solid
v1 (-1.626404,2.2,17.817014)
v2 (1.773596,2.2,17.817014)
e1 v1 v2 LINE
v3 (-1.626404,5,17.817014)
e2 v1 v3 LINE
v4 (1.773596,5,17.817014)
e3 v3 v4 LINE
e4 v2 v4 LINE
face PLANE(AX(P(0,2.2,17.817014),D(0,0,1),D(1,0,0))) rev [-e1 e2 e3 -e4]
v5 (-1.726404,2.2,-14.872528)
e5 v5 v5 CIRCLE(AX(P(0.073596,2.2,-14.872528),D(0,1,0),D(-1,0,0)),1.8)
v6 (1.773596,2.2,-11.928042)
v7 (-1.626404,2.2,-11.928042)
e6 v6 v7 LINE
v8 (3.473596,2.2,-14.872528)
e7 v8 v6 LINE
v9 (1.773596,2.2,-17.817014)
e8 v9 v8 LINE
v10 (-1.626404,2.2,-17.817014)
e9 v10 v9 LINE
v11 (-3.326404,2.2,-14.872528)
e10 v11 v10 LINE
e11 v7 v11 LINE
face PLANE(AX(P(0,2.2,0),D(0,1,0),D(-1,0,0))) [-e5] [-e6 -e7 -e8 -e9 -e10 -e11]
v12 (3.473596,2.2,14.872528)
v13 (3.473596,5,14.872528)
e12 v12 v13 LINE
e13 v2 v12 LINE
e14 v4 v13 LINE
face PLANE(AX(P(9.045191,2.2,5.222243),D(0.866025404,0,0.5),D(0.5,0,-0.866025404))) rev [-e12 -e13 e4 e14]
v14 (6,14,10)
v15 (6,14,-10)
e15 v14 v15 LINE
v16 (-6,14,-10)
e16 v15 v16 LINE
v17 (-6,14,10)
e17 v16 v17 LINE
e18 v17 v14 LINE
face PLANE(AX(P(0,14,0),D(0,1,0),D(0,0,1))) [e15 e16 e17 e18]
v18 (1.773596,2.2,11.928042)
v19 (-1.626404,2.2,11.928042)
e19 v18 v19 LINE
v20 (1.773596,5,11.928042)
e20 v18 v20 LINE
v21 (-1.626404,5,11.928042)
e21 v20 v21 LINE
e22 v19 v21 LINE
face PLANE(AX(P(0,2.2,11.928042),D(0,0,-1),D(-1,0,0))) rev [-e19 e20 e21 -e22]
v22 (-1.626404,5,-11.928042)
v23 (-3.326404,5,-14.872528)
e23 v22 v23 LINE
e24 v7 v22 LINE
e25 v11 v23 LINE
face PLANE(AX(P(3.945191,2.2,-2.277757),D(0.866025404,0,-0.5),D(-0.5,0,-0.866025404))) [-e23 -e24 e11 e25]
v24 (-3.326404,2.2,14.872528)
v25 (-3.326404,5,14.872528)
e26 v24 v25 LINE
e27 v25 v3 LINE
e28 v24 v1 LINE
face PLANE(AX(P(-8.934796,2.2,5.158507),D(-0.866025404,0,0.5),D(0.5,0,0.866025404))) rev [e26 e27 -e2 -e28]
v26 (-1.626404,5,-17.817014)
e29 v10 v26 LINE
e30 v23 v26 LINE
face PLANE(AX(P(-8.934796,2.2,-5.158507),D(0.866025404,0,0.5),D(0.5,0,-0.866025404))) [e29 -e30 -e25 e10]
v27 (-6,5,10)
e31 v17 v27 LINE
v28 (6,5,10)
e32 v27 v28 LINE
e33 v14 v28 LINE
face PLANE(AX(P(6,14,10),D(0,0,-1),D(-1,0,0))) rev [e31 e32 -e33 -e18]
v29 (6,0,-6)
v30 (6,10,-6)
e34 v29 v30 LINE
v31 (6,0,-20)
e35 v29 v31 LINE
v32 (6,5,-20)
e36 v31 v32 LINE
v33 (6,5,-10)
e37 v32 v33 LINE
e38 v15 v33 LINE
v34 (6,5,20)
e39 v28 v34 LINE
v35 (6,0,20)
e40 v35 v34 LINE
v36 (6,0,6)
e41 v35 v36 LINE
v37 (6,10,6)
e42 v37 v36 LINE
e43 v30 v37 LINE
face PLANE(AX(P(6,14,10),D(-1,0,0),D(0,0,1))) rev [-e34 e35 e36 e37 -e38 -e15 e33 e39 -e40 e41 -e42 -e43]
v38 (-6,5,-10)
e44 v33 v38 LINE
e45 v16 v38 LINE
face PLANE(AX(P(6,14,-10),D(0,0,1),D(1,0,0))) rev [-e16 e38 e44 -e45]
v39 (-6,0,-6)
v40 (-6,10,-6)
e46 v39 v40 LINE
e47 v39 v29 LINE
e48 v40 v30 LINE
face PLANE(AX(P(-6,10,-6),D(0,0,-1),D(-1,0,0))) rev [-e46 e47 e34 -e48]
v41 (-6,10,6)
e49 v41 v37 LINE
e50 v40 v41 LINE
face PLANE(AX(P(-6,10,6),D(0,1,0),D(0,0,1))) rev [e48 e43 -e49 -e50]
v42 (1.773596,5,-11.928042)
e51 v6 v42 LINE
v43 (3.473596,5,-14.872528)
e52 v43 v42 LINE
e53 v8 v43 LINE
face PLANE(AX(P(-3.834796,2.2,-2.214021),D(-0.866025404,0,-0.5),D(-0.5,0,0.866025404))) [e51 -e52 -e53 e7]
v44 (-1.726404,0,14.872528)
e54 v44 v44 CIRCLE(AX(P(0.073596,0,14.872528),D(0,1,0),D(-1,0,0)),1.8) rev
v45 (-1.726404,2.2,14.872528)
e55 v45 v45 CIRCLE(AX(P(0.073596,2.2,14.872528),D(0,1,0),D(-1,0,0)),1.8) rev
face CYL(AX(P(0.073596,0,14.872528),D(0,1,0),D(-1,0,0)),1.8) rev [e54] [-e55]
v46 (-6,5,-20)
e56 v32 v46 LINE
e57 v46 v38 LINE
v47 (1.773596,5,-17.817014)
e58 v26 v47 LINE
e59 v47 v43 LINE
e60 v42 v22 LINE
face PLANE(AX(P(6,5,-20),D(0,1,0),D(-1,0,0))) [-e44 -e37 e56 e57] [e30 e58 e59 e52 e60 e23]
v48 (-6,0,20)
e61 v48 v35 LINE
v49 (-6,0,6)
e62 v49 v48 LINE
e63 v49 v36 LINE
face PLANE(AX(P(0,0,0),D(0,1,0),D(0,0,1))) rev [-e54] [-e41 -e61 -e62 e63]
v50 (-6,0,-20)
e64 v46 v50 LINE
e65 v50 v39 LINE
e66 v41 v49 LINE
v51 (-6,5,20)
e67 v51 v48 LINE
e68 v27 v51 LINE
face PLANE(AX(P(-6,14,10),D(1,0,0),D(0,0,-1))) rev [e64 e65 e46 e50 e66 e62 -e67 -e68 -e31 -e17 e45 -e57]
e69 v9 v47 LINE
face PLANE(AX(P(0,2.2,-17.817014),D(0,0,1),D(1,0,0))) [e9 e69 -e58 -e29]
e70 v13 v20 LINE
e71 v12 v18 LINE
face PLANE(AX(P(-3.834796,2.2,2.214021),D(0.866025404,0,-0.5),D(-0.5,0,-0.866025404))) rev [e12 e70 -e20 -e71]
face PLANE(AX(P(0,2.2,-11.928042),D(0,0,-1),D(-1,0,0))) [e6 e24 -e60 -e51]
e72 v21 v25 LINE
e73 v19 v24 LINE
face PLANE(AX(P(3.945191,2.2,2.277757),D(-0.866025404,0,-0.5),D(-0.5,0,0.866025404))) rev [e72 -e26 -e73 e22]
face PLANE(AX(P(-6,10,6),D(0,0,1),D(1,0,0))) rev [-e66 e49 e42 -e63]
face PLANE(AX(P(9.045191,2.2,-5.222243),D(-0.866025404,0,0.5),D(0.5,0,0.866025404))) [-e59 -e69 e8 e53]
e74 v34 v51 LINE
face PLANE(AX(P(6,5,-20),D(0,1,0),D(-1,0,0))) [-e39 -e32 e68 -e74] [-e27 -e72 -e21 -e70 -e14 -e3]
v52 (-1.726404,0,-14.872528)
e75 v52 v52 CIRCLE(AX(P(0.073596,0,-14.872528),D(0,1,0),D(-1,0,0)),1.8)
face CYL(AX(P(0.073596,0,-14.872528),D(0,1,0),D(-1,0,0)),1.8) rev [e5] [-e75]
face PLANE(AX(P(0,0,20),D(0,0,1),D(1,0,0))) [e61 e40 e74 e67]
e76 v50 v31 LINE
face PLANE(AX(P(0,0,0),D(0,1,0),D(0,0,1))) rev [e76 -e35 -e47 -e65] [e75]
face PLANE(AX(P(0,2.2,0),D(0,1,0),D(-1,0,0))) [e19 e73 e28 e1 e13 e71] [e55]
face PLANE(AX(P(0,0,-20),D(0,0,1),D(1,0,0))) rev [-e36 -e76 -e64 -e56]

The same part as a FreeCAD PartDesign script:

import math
import FreeCAD as App
import Part
import Sketcher
from FreeCAD import Vector
Q = App.Units.Quantity


def add_polygon(sketch, points):
    """Adds a closed chain of lines whose ends are joined by coincident constraints."""
    first, n = sketch.GeometryCount, len(points)
    for a, b in zip(points, points[1:] + points[:1]):
        sketch.addGeometry(Part.LineSegment(App.Vector(*a, 0), App.Vector(*b, 0)), False)
    for i in range(n):
        sketch.addConstraint(Sketcher.Constraint("Coincident", first + i, 2, first + (i + 1) % n, 1))

doc = App.newDocument("Part")
body = doc.addObject("PartDesign::Body", "Body")

# Sketch on XZ plane
sketch1 = doc.addObject("Sketcher::SketchObject", "Sketch")
body.addObject(sketch1)
sketch1.AttachmentSupport = (doc.XZ_Plane, [""])
sketch1.MapMode = "FlatFace"
add_polygon(sketch1, [(-6, -10), (-6, 10), (6, 10), (6, -10)])  # lines 0-3
sketch1.addConstraint(Sketcher.Constraint("Vertical", 0))
sketch1.addConstraint(Sketcher.Constraint("Horizontal", 1))
sketch1.addConstraint(Sketcher.Constraint("Vertical", 2))
sketch1.addConstraint(Sketcher.Constraint("Horizontal", 3))
sketch1.addConstraint(Sketcher.Constraint("Symmetric", 0, 2, 2, 2, -1, 1))
sketch1.addConstraint(Sketcher.Constraint("DistanceX", 1, 1, 1, 2, 12.0))
sketch1.addConstraint(Sketcher.Constraint("DistanceY", 0, 1, 0, 2, 20.0))
pad1 = doc.addObject("PartDesign::Pad", "Pad")
body.addObject(pad1)
pad1.Profile = sketch1
pad1.Length = 14
pad1.Reversed = True

# Sketch on YZ plane
sketch2 = doc.addObject("Sketcher::SketchObject", "Sketch001")
body.addObject(sketch2)
sketch2.AttachmentSupport = (doc.YZ_Plane, [""])
sketch2.MapMode = "FlatFace"
sketch2.AttachmentOffset = App.Placement(Vector(0, 0, 6), App.Rotation())
add_polygon(sketch2, [(10, 6), (0, 6), (0, -6), (10, -6)])  # lines 0-3
sketch2.addConstraint(Sketcher.Constraint("Horizontal", 0))
sketch2.addConstraint(Sketcher.Constraint("Vertical", 1))
sketch2.addConstraint(Sketcher.Constraint("Horizontal", 2))
sketch2.addConstraint(Sketcher.Constraint("Vertical", 3))
sketch2.addConstraint(Sketcher.Constraint("Symmetric", 0, 2, 1, 2, -1, 1))
sketch2.addConstraint(Sketcher.Constraint("DistanceX", 0, 2, 0, 1, 10.0))
sketch2.addConstraint(Sketcher.Constraint("DistanceY", 1, 2, 1, 1, 12.0))
pocket1 = doc.addObject("PartDesign::Pocket", "Pocket")
body.addObject(pocket1)
pocket1.Profile = sketch2
pocket1.Length = 12

# Sketch on XY plane
sketch3 = doc.addObject("Sketcher::SketchObject", "Sketch002")
body.addObject(sketch3)
sketch3.AttachmentSupport = (doc.XY_Plane, [""])
sketch3.MapMode = "FlatFace"
sketch3.AttachmentOffset = App.Placement(Vector(0, 0, 10), App.Rotation())
add_polygon(sketch3, [(-6, 5), (-6, 0), (6, 0), (6, 5)])  # lines 0-3
sketch3.addConstraint(Sketcher.Constraint("Vertical", 0))
sketch3.addConstraint(Sketcher.Constraint("Horizontal", 1))
sketch3.addConstraint(Sketcher.Constraint("Vertical", 2))
sketch3.addConstraint(Sketcher.Constraint("Horizontal", 3))
sketch3.addConstraint(Sketcher.Constraint("Symmetric", 0, 2, 1, 2, -1, 1))
sketch3.addConstraint(Sketcher.Constraint("DistanceX", 1, 1, 1, 2, 12.0))
sketch3.addConstraint(Sketcher.Constraint("DistanceY", 0, 2, 0, 1, 5.0))
pad2 = doc.addObject("PartDesign::Pad", "Pad001")
body.addObject(pad2)
pad2.Profile = sketch3
pad2.Type = "TwoLengths"
pad2.Length = 10
pad2.Length2 = 30

# Sketch on YZ plane
sketch4 = doc.addObject("Sketcher::SketchObject", "Sketch003")
body.addObject(sketch4)
sketch4.AttachmentSupport = (doc.YZ_Plane, [""])
sketch4.MapMode = "FlatFace"
sketch4.AttachmentOffset = App.Placement(Vector(0, 0, 6), App.Rotation())
add_polygon(sketch4, [(5, 6), (0, 6), (0, -6), (5, -6)])  # lines 0-3
sketch4.addConstraint(Sketcher.Constraint("Horizontal", 0))
sketch4.addConstraint(Sketcher.Constraint("Vertical", 1))
sketch4.addConstraint(Sketcher.Constraint("Horizontal", 2))
sketch4.addConstraint(Sketcher.Constraint("Vertical", 3))
sketch4.addConstraint(Sketcher.Constraint("Symmetric", 0, 2, 1, 2, -1, 1))
sketch4.addConstraint(Sketcher.Constraint("DistanceX", 0, 2, 0, 1, 5.0))
sketch4.addConstraint(Sketcher.Constraint("DistanceY", 1, 2, 1, 1, 12.0))
pocket2 = doc.addObject("PartDesign::Pocket", "Pocket001")
body.addObject(pocket2)
pocket2.Profile = sketch4
pocket2.Length = 12

# Sketch on XZ plane
sketch5 = doc.addObject("Sketcher::SketchObject", "Sketch004")
body.addObject(sketch5)
sketch5.AttachmentSupport = (doc.XZ_Plane, [""])
sketch5.MapMode = "FlatFace"
sketch5.AttachmentOffset = App.Placement(Vector(0, 0, -5), App.Rotation())
sketch5.addGeometry(Part.Circle(Vector(0.1, -14.9, 0), Vector(0, 0, 1), 1.8), False)
sketch5.addConstraint(Sketcher.Constraint("Diameter", 0, 3.6))
sketch5.addConstraint(Sketcher.Constraint("DistanceX", -1, 1, 0, 3, 0.073596))
sketch5.addConstraint(Sketcher.Constraint("DistanceY", 0, 3, -1, 1, 14.872528))
pocket3 = doc.addObject("PartDesign::Pocket", "Pocket002")
body.addObject(pocket3)
pocket3.Profile = sketch5
pocket3.Length = 5
pocket3.Reversed = True

# Sketch on XZ plane
sketch6 = doc.addObject("Sketcher::SketchObject", "Sketch005")
body.addObject(sketch6)
sketch6.AttachmentSupport = (doc.XZ_Plane, [""])
sketch6.MapMode = "FlatFace"
sketch6.AttachmentOffset = App.Placement(Vector(0, 0, -5), App.Rotation())
sketch6.addGeometry(Part.ArcOfCircle(Part.Circle(Vector(0.1, 14.9, 0), Vector(0, 0, 1), 1.8), math.radians(120), math.radians(300)), False)
sketch6.addGeometry(Part.ArcOfCircle(Part.Circle(Vector(0.1, 14.9, 0), Vector(0, 0, 1), 1.8), math.radians(0), math.radians(120)), False)
sketch6.addGeometry(Part.ArcOfCircle(Part.Circle(Vector(0.1, 14.9, 0), Vector(0, 0, 1), 1.8), math.radians(-60), math.radians(0)), False)
sketch6.addConstraint(Sketcher.Constraint("Tangent", 0, 1, 1, 2))
sketch6.addConstraint(Sketcher.Constraint("Tangent", 1, 1, 2, 2))
sketch6.addConstraint(Sketcher.Constraint("Tangent", 2, 1, 0, 2))
sketch6.addConstraint(Sketcher.Constraint("Horizontal", 2, 3, 1, 1))
sketch6.addConstraint(Sketcher.Constraint("Radius", 0, 1.8))
sketch6.addConstraint(Sketcher.Constraint("DistanceX", 0, 1, 2, 3, 0.9))
sketch6.addConstraint(Sketcher.Constraint("DistanceX", 0, 3, 2, 1, 0.9))
sketch6.addConstraint(Sketcher.Constraint("DistanceX", -1, 1, 0, 3, 0.073596))
sketch6.addConstraint(Sketcher.Constraint("DistanceY", -1, 1, 0, 3, 14.872528))
pocket4 = doc.addObject("PartDesign::Pocket", "Pocket003")
body.addObject(pocket4)
pocket4.Profile = sketch6
pocket4.Length = 5
pocket4.Reversed = True

# Sketch on XZ plane
sketch7 = doc.addObject("Sketcher::SketchObject", "Sketch006")
body.addObject(sketch7)
sketch7.AttachmentSupport = (doc.XZ_Plane, [""])
sketch7.MapMode = "FlatFace"
sketch7.AttachmentOffset = App.Placement(Vector(0, 0, -5), App.Rotation())
add_polygon(sketch7, [(1.8, -17.8), (-1.6, -17.8), (-3.3, -14.9), (-1.6, -11.9), (1.8, -11.9), (3.5, -14.9)])  # lines 0-5
add_polygon(sketch7, [(1.8, 11.9), (-1.6, 11.9), (-3.3, 14.9), (-1.6, 17.8), (1.8, 17.8), (3.5, 14.9)])  # lines 6-11
sketch7.addConstraint(Sketcher.Constraint("Horizontal", 0))
sketch7.addConstraint(Sketcher.Constraint("Horizontal", 3))
sketch7.addConstraint(Sketcher.Constraint("Horizontal", 6))
sketch7.addConstraint(Sketcher.Constraint("Horizontal", 9))
sketch7.addConstraint(Sketcher.Constraint("Symmetric", 2, 2, 6, 2, -1))
sketch7.addConstraint(Sketcher.Constraint("Symmetric", 1, 2, 7, 2, -1))
sketch7.addConstraint(Sketcher.Constraint("Symmetric", 0, 2, 8, 2, -1))
sketch7.addConstraint(Sketcher.Constraint("Symmetric", 4, 2, 10, 2, -1))
sketch7.addConstraint(Sketcher.Constraint("Parallel", 1, 4))
sketch7.addConstraint(Sketcher.Constraint("Parallel", 2, 5))
sketch7.addConstraint(Sketcher.Constraint("Parallel", 4, 7))
sketch7.addConstraint(Sketcher.Constraint("Parallel", 7, 10))
sketch7.addConstraint(Sketcher.Constraint("Parallel", 8, 11))
sketch7.addConstraint(Sketcher.Constraint("Horizontal", 1, 2, 4, 2))
sketch7.addConstraint(Sketcher.Constraint("Vertical", 0, 2, 2, 2))
sketch7.addConstraint(Sketcher.Constraint("Angle", 1, Q("120 deg")))
sketch7.addConstraint(Sketcher.Constraint("DistanceX", 0, 2, 0, 1, 3.4))
sketch7.addConstraint(Sketcher.Constraint("Distance", 1, 3.4))
sketch7.addConstraint(Sketcher.Constraint("DistanceY", 2, 2, -1, 1, 11.928042))
sketch7.addConstraint(Sketcher.Constraint("DistanceX", 0, 2, -1, 1, 1.626404))
pocket5 = doc.addObject("PartDesign::Pocket", "Pocket004")
body.addObject(pocket5)
pocket5.Profile = sketch7
pocket5.Length = 2.8
pocket5.Reversed = True

doc.recompute()
